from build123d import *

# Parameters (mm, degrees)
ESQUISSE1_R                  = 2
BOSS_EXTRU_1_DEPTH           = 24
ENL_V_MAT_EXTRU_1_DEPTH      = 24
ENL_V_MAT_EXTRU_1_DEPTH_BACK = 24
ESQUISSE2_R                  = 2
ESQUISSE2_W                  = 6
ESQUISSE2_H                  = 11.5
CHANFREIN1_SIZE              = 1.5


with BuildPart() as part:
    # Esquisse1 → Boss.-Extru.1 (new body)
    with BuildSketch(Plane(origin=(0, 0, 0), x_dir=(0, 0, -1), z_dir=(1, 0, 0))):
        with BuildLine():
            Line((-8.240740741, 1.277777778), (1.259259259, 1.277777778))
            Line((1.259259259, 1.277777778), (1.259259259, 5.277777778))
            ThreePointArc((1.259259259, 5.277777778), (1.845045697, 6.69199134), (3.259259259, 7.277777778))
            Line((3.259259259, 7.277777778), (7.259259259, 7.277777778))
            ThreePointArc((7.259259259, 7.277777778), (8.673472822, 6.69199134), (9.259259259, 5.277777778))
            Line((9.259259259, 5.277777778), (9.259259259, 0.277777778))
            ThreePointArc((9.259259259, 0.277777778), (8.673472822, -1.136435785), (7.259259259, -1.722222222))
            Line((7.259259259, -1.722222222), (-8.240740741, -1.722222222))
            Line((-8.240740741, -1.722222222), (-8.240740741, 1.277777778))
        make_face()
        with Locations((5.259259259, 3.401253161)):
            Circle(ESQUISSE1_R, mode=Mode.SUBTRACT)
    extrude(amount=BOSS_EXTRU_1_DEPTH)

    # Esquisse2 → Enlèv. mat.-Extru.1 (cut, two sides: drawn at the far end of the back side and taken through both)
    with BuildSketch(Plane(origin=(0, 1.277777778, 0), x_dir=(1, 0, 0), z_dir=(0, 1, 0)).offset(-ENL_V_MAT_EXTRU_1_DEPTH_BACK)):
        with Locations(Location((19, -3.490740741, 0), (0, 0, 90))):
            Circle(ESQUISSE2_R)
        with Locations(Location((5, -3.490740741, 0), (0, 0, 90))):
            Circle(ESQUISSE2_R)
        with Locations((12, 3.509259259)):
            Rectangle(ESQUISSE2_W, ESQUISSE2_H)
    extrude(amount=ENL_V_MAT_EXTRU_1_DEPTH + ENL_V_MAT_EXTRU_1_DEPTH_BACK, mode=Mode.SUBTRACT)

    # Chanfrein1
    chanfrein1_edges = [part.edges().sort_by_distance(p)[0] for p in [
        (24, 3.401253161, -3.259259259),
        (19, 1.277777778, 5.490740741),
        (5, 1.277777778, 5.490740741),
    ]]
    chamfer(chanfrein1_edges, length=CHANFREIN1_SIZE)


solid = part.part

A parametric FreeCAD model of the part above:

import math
import FreeCAD as App
import Part
import Sketcher

V = App.Vector


def edges_at(feature, points):
    """Names of the edges that pass closest to the given points."""
    edges = feature.Shape.Edges
    near = lambda p: min(range(len(edges)), key=lambda i: edges[i].distToShape(Part.Vertex(*p))[0])
    return sorted({f"Edge{near(p) + 1}" for p in points})


def add_polygon(sketch, points):
    """Adds a closed chain of lines whose ends are joined by coincident constraints."""
    first, n = sketch.GeometryCount, len(points)
    for a, b in zip(points, points[1:] + points[:1]):
        sketch.addGeometry(Part.LineSegment(App.Vector(*a, 0), App.Vector(*b, 0)), False)
    for i in range(n):
        sketch.addConstraint(Sketcher.Constraint("Coincident", first + i, 2, first + (i + 1) % n, 1))

doc = App.newDocument("Part")
params = doc.addObject("Spreadsheet::Sheet", "Params")
for row, (alias, value) in enumerate([
    ("sketch1_diameter", "4 mm"),
    ("sketch1_width", "3 mm"),
    ("sketch1_width2", "5 mm"),
    ("sketch1_height", "9.5 mm"),
    ("pad1_length", "24 mm"),
    ("sketch2_diameter", "4 mm"),
    ("sketch2_width", "6 mm"),
    ("sketch2_height", "11.5 mm"),
    ("chamfer_size", "1.5 mm"),
], start=1):
    params.set(f"A{row}", alias)
    params.set(f"B{row}", "=" + value)
    params.setAlias(f"B{row}", alias)

body = doc.addObject("PartDesign::Body", "Body")

# Sketch on YZ plane
sketch1 = body.newObject("Sketcher::SketchObject", "Sketch")
sketch1.AttachmentSupport = (doc.getObject("YZ_Plane"), [""])
sketch1.MapMode = "FlatFace"
sketch1.addGeometry(Part.LineSegment(V(1.3, -1.3, 0), V(1.3, 8.2, 0)), False)
sketch1.addGeometry(Part.LineSegment(V(1.3, 8.2, 0), V(-1.7, 8.2, 0)), False)
sketch1.addGeometry(Part.LineSegment(V(-1.7, 8.2, 0), V(-1.7, -7.3, 0)), False)
sketch1.addGeometry(Part.ArcOfCircle(Part.Circle(V(0.3, -7.3, 0), V(0, 0, 1), 2), math.radians(180), math.radians(270)), False)
sketch1.addGeometry(Part.LineSegment(V(0.3, -9.3, 0), V(5.3, -9.3, 0)), False)
sketch1.addGeometry(Part.ArcOfCircle(Part.Circle(V(5.3, -7.3, 0), V(0, 0, 1), 2), math.radians(-90), math.radians(0)), False)
sketch1.addGeometry(Part.LineSegment(V(7.3, -7.3, 0), V(7.3, -3.3, 0)), False)
sketch1.addGeometry(Part.ArcOfCircle(Part.Circle(V(5.3, -3.3, 0), V(0, 0, 1), 2), math.radians(0), math.radians(90)), False)
sketch1.addGeometry(Part.LineSegment(V(5.3, -1.3, 0), V(1.3, -1.3, 0)), False)
sketch1.addGeometry(Part.Circle(V(3.4, -5.3, 0), V(0, 0, 1), 2), False)
sketch1.addConstraint(Sketcher.Constraint("Coincident", 0, 2, 1, 1))
sketch1.addConstraint(Sketcher.Constraint("Coincident", 1, 2, 2, 1))
sketch1.addConstraint(Sketcher.Constraint("Tangent", 2, 2, 3, 1))
sketch1.addConstraint(Sketcher.Constraint("Tangent", 3, 2, 4, 1))
sketch1.addConstraint(Sketcher.Constraint("Tangent", 4, 2, 5, 1))
sketch1.addConstraint(Sketcher.Constraint("Tangent", 5, 2, 6, 1))
sketch1.addConstraint(Sketcher.Constraint("Tangent", 6, 2, 7, 1))
sketch1.addConstraint(Sketcher.Constraint("Tangent", 7, 2, 8, 1))
sketch1.addConstraint(Sketcher.Constraint("Coincident", 8, 2, 0, 1))
sketch1.addConstraint(Sketcher.Constraint("Vertical", 0))
sketch1.addConstraint(Sketcher.Constraint("Horizontal", 1))
sketch1.addConstraint(Sketcher.Constraint("Vertical", 2))
sketch1.addConstraint(Sketcher.Constraint("Horizontal", 4))
sketch1.addConstraint(Sketcher.Constraint("Vertical", 6))
sketch1.addConstraint(Sketcher.Constraint("Horizontal", 8))
sketch1.addConstraint(Sketcher.Constraint("Equal", 3, 5))
sketch1.addConstraint(Sketcher.Constraint("Equal", 5, 7))
sketch1.addConstraint(Sketcher.Constraint("Equal", 7, 9))
sketch1.addConstraint(Sketcher.Constraint("Equal", 8, 6))
sketch1.addConstraint(Sketcher.Constraint("Diameter", 9, 4.0))
sketch1.addConstraint(Sketcher.Constraint("DistanceX", 1, 2, 1, 1, 3.0))
sketch1.addConstraint(Sketcher.Constraint("DistanceX", 4, 1, 4, 2, 5.0))
sketch1.addConstraint(Sketcher.Constraint("DistanceY", 0, 1, 0, 2, 9.5))
sketch1.addConstraint(Sketcher.Constraint("DistanceY", 9, 3, 7, 3, 2.0))
sketch1.addConstraint(Sketcher.Constraint("DistanceY", 3, 3, -1, 1, 7.259259))
sketch1.addConstraint(Sketcher.Constraint("DistanceX", -1, 1, 3, 3, 0.277778))
sketch1.addConstraint(Sketcher.Constraint("DistanceX", -1, 1, 9, 3, 3.401253))
sketch1.setExpression("Constraints[19]", "Params.sketch1_diameter")
sketch1.setExpression("Constraints[20]", "Params.sketch1_width")
sketch1.setExpression("Constraints[21]", "Params.sketch1_width2")
sketch1.setExpression("Constraints[22]", "Params.sketch1_height")
pad1 = body.newObject("PartDesign::Pad", "Pad")
pad1.Profile = sketch1
pad1.setExpression("Length", "Params.pad1_length")

# Sketch on XZ plane
sketch2 = body.newObject("Sketcher::SketchObject", "Sketch001")
sketch2.AttachmentSupport = (doc.getObject("XZ_Plane"), [""])
sketch2.MapMode = "FlatFace"
sketch2.AttachmentOffset = App.Placement(V(0, 0, -1.277778), App.Rotation())
sketch2.addGeometry(Part.Circle(V(19, 3.5, 0), V(0, 0, 1), 2), False)  # 0
sketch2.addGeometry(Part.Circle(V(5, 3.5, 0), V(0, 0, 1), 2), False)  # 1
add_polygon(sketch2, [(9, -9.3), (9, 2.2), (15, 2.2), (15, -9.3)])  # lines 2-5
sketch2.addConstraint(Sketcher.Constraint("Vertical", 2))
sketch2.addConstraint(Sketcher.Constraint("Horizontal", 3))
sketch2.addConstraint(Sketcher.Constraint("Vertical", 4))
sketch2.addConstraint(Sketcher.Constraint("Horizontal", 5))
sketch2.addConstraint(Sketcher.Constraint("Equal", 0, 1))
sketch2.addConstraint(Sketcher.Constraint("Horizontal", 0, 3, 1, 3))
sketch2.addConstraint(Sketcher.Constraint("Diameter", 0, 4.0))
sketch2.addConstraint(Sketcher.Constraint("DistanceX", 3, 1, 3, 2, 6.0))
sketch2.addConstraint(Sketcher.Constraint("DistanceY", 2, 1, 2, 2, 11.5))
sketch2.addConstraint(Sketcher.Constraint("DistanceX", -1, 1, 0, 3, 19.0))
sketch2.addConstraint(Sketcher.Constraint("DistanceX", -1, 1, 1, 3, 5.0))
sketch2.addConstraint(Sketcher.Constraint("DistanceX", -1, 1, 2, 2, 9.0))
sketch2.addConstraint(Sketcher.Constraint("DistanceY", 2, 2, 1, 3, 1.25))
sketch2.addConstraint(Sketcher.Constraint("DistanceY", -1, 1, 0, 3, 3.490741))
sketch2.setExpression("Constraints[10]", "Params.sketch2_diameter")
sketch2.setExpression("Constraints[11]", "Params.sketch2_width")
sketch2.setExpression("Constraints[12]", "Params.sketch2_height")
pocket1 = body.newObject("PartDesign::Pocket", "Pocket")
pocket1.Profile = sketch2
pocket1.Type = "ThroughAll"
pocket1.Midplane = True
doc.recompute()

chamfer = body.newObject("PartDesign::Chamfer", "Chamfer")
chamfer.Base = (pocket1, edges_at(pocket1, [(24, 3.401, -3.259), (19, 1.278, 5.491), (5, 1.278, 5.491)]))
chamfer.setExpression("Size", "Params.chamfer_size")

doc.recompute()
